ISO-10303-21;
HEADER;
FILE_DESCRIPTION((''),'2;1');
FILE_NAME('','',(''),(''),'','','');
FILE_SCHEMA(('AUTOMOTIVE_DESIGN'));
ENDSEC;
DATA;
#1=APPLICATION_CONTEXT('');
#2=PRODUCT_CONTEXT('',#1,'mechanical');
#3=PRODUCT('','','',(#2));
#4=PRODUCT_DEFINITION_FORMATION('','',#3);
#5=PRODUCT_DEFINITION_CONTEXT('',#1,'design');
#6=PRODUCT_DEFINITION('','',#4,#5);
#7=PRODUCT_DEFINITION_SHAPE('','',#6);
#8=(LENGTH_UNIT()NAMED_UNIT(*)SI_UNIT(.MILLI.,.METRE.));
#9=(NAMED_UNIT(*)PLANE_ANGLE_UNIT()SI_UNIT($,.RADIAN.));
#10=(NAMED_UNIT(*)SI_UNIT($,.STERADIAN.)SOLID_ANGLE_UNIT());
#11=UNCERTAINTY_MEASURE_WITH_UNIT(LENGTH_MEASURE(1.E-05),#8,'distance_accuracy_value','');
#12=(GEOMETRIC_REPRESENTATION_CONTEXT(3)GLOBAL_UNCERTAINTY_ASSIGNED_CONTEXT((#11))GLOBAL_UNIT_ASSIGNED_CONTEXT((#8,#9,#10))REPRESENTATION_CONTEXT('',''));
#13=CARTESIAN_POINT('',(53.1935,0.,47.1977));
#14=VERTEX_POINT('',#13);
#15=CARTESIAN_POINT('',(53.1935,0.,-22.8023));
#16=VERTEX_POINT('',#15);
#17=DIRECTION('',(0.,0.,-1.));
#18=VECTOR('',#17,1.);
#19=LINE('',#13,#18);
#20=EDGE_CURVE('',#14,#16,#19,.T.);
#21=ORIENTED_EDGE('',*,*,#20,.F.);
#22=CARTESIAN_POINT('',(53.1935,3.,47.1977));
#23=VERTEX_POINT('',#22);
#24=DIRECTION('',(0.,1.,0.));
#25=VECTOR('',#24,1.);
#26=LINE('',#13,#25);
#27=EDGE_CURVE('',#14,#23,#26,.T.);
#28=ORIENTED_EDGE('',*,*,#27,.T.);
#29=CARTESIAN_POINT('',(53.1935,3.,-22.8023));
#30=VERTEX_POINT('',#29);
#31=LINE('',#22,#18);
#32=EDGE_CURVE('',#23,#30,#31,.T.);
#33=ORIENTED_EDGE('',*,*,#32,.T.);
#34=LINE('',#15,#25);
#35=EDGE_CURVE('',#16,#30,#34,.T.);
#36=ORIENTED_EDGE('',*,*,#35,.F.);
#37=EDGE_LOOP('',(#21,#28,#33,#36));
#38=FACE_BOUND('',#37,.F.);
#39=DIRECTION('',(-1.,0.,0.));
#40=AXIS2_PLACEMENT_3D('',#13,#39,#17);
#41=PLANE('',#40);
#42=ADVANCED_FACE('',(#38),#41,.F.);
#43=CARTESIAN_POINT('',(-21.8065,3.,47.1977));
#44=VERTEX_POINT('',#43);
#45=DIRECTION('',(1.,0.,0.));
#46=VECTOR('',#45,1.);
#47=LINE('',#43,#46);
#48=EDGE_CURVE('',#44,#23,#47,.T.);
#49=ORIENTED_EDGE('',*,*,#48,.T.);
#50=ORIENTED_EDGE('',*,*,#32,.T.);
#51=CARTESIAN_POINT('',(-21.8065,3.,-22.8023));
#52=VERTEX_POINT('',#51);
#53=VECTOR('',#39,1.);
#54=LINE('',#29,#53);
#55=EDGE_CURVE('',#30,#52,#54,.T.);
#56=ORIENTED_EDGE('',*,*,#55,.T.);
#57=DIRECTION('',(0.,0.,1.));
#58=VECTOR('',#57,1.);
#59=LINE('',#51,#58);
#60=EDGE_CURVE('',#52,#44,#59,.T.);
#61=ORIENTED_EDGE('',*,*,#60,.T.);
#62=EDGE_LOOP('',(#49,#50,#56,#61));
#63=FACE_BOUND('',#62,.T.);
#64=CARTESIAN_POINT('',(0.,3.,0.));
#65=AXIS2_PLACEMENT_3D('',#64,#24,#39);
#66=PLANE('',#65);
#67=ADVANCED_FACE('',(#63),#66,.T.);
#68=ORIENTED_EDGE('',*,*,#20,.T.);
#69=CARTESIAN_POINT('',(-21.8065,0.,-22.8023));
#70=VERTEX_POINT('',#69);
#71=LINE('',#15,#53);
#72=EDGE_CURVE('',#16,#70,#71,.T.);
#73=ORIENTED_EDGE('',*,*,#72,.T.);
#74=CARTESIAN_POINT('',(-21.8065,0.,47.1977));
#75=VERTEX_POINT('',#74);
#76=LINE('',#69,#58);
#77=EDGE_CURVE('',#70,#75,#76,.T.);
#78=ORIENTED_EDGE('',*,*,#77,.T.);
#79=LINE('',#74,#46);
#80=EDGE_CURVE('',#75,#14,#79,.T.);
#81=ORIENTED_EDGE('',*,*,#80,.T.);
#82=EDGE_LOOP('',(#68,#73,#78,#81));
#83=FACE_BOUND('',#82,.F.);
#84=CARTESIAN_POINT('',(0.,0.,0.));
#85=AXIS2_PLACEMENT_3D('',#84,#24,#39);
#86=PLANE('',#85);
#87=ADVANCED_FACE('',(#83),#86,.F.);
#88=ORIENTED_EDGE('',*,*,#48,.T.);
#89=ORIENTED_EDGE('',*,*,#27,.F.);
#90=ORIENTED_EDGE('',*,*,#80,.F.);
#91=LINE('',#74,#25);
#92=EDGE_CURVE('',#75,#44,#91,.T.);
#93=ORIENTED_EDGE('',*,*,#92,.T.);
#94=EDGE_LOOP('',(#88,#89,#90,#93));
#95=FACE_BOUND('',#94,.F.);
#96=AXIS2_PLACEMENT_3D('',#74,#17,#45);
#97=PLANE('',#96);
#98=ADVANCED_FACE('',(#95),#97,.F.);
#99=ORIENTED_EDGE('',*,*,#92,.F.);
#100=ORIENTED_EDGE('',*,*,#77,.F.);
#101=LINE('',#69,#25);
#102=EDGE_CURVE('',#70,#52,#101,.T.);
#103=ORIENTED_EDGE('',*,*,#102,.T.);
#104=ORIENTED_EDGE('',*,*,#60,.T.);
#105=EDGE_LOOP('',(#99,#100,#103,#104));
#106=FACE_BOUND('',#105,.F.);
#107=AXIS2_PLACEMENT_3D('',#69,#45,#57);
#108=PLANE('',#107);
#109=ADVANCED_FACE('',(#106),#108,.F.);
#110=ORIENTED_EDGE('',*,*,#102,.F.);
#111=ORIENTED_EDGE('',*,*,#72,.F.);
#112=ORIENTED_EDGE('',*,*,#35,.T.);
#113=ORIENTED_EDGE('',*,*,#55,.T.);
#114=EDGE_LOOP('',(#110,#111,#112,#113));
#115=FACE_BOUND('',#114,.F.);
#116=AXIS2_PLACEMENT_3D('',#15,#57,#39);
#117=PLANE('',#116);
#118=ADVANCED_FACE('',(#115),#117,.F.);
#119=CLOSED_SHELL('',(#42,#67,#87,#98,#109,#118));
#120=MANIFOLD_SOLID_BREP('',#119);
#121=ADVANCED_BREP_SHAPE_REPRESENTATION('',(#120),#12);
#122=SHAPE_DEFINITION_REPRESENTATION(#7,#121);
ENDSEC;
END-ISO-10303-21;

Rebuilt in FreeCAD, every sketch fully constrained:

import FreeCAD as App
import Part
import Sketcher
from FreeCAD import Vector


def add_polygon(sketch, points):
    """Adds a closed chain of lines whose ends are joined by coincident constraints."""
    first, n = sketch.GeometryCount, len(points)
    for a, b in zip(points, points[1:] + points[:1]):
        sketch.addGeometry(Part.LineSegment(App.Vector(*a, 0), App.Vector(*b, 0)), False)
    for i in range(n):
        sketch.addConstraint(Sketcher.Constraint("Coincident", first + i, 2, first + (i + 1) % n, 1))

doc = App.newDocument("Part")
body = doc.addObject("PartDesign::Body", "Body")

# Sketch on XZ plane
sketch1 = doc.addObject("Sketcher::SketchObject", "Sketch")
body.addObject(sketch1)
sketch1.AttachmentSupport = (doc.XZ_Plane, [""])
sketch1.MapMode = "FlatFace"
add_polygon(sketch1, [(-22, -23), (-22, 47), (53, 47), (53, -23)])  # lines 0-3
sketch1.addConstraint([
    Sketcher.Constraint("Vertical", 0),
    Sketcher.Constraint("Horizontal", 1),
    Sketcher.Constraint("Vertical", 2),
    Sketcher.Constraint("Horizontal", 3),
    Sketcher.Constraint("DistanceX", 1, 1, 1, 2, 75.0),
    Sketcher.Constraint("DistanceY", 0, 1, 0, 2, 70.0),
    Sketcher.Constraint("DistanceX", 0, 2, -1, 1, 21.8065),
    Sketcher.Constraint("DistanceY", -1, 1, 0, 2, 47.1977),
])
pad1 = doc.addObject("PartDesign::Pad", "Pad")
body.addObject(pad1)
pad1.Profile = sketch1
pad1.Length = 3
pad1.Reversed = True

doc.recompute()
